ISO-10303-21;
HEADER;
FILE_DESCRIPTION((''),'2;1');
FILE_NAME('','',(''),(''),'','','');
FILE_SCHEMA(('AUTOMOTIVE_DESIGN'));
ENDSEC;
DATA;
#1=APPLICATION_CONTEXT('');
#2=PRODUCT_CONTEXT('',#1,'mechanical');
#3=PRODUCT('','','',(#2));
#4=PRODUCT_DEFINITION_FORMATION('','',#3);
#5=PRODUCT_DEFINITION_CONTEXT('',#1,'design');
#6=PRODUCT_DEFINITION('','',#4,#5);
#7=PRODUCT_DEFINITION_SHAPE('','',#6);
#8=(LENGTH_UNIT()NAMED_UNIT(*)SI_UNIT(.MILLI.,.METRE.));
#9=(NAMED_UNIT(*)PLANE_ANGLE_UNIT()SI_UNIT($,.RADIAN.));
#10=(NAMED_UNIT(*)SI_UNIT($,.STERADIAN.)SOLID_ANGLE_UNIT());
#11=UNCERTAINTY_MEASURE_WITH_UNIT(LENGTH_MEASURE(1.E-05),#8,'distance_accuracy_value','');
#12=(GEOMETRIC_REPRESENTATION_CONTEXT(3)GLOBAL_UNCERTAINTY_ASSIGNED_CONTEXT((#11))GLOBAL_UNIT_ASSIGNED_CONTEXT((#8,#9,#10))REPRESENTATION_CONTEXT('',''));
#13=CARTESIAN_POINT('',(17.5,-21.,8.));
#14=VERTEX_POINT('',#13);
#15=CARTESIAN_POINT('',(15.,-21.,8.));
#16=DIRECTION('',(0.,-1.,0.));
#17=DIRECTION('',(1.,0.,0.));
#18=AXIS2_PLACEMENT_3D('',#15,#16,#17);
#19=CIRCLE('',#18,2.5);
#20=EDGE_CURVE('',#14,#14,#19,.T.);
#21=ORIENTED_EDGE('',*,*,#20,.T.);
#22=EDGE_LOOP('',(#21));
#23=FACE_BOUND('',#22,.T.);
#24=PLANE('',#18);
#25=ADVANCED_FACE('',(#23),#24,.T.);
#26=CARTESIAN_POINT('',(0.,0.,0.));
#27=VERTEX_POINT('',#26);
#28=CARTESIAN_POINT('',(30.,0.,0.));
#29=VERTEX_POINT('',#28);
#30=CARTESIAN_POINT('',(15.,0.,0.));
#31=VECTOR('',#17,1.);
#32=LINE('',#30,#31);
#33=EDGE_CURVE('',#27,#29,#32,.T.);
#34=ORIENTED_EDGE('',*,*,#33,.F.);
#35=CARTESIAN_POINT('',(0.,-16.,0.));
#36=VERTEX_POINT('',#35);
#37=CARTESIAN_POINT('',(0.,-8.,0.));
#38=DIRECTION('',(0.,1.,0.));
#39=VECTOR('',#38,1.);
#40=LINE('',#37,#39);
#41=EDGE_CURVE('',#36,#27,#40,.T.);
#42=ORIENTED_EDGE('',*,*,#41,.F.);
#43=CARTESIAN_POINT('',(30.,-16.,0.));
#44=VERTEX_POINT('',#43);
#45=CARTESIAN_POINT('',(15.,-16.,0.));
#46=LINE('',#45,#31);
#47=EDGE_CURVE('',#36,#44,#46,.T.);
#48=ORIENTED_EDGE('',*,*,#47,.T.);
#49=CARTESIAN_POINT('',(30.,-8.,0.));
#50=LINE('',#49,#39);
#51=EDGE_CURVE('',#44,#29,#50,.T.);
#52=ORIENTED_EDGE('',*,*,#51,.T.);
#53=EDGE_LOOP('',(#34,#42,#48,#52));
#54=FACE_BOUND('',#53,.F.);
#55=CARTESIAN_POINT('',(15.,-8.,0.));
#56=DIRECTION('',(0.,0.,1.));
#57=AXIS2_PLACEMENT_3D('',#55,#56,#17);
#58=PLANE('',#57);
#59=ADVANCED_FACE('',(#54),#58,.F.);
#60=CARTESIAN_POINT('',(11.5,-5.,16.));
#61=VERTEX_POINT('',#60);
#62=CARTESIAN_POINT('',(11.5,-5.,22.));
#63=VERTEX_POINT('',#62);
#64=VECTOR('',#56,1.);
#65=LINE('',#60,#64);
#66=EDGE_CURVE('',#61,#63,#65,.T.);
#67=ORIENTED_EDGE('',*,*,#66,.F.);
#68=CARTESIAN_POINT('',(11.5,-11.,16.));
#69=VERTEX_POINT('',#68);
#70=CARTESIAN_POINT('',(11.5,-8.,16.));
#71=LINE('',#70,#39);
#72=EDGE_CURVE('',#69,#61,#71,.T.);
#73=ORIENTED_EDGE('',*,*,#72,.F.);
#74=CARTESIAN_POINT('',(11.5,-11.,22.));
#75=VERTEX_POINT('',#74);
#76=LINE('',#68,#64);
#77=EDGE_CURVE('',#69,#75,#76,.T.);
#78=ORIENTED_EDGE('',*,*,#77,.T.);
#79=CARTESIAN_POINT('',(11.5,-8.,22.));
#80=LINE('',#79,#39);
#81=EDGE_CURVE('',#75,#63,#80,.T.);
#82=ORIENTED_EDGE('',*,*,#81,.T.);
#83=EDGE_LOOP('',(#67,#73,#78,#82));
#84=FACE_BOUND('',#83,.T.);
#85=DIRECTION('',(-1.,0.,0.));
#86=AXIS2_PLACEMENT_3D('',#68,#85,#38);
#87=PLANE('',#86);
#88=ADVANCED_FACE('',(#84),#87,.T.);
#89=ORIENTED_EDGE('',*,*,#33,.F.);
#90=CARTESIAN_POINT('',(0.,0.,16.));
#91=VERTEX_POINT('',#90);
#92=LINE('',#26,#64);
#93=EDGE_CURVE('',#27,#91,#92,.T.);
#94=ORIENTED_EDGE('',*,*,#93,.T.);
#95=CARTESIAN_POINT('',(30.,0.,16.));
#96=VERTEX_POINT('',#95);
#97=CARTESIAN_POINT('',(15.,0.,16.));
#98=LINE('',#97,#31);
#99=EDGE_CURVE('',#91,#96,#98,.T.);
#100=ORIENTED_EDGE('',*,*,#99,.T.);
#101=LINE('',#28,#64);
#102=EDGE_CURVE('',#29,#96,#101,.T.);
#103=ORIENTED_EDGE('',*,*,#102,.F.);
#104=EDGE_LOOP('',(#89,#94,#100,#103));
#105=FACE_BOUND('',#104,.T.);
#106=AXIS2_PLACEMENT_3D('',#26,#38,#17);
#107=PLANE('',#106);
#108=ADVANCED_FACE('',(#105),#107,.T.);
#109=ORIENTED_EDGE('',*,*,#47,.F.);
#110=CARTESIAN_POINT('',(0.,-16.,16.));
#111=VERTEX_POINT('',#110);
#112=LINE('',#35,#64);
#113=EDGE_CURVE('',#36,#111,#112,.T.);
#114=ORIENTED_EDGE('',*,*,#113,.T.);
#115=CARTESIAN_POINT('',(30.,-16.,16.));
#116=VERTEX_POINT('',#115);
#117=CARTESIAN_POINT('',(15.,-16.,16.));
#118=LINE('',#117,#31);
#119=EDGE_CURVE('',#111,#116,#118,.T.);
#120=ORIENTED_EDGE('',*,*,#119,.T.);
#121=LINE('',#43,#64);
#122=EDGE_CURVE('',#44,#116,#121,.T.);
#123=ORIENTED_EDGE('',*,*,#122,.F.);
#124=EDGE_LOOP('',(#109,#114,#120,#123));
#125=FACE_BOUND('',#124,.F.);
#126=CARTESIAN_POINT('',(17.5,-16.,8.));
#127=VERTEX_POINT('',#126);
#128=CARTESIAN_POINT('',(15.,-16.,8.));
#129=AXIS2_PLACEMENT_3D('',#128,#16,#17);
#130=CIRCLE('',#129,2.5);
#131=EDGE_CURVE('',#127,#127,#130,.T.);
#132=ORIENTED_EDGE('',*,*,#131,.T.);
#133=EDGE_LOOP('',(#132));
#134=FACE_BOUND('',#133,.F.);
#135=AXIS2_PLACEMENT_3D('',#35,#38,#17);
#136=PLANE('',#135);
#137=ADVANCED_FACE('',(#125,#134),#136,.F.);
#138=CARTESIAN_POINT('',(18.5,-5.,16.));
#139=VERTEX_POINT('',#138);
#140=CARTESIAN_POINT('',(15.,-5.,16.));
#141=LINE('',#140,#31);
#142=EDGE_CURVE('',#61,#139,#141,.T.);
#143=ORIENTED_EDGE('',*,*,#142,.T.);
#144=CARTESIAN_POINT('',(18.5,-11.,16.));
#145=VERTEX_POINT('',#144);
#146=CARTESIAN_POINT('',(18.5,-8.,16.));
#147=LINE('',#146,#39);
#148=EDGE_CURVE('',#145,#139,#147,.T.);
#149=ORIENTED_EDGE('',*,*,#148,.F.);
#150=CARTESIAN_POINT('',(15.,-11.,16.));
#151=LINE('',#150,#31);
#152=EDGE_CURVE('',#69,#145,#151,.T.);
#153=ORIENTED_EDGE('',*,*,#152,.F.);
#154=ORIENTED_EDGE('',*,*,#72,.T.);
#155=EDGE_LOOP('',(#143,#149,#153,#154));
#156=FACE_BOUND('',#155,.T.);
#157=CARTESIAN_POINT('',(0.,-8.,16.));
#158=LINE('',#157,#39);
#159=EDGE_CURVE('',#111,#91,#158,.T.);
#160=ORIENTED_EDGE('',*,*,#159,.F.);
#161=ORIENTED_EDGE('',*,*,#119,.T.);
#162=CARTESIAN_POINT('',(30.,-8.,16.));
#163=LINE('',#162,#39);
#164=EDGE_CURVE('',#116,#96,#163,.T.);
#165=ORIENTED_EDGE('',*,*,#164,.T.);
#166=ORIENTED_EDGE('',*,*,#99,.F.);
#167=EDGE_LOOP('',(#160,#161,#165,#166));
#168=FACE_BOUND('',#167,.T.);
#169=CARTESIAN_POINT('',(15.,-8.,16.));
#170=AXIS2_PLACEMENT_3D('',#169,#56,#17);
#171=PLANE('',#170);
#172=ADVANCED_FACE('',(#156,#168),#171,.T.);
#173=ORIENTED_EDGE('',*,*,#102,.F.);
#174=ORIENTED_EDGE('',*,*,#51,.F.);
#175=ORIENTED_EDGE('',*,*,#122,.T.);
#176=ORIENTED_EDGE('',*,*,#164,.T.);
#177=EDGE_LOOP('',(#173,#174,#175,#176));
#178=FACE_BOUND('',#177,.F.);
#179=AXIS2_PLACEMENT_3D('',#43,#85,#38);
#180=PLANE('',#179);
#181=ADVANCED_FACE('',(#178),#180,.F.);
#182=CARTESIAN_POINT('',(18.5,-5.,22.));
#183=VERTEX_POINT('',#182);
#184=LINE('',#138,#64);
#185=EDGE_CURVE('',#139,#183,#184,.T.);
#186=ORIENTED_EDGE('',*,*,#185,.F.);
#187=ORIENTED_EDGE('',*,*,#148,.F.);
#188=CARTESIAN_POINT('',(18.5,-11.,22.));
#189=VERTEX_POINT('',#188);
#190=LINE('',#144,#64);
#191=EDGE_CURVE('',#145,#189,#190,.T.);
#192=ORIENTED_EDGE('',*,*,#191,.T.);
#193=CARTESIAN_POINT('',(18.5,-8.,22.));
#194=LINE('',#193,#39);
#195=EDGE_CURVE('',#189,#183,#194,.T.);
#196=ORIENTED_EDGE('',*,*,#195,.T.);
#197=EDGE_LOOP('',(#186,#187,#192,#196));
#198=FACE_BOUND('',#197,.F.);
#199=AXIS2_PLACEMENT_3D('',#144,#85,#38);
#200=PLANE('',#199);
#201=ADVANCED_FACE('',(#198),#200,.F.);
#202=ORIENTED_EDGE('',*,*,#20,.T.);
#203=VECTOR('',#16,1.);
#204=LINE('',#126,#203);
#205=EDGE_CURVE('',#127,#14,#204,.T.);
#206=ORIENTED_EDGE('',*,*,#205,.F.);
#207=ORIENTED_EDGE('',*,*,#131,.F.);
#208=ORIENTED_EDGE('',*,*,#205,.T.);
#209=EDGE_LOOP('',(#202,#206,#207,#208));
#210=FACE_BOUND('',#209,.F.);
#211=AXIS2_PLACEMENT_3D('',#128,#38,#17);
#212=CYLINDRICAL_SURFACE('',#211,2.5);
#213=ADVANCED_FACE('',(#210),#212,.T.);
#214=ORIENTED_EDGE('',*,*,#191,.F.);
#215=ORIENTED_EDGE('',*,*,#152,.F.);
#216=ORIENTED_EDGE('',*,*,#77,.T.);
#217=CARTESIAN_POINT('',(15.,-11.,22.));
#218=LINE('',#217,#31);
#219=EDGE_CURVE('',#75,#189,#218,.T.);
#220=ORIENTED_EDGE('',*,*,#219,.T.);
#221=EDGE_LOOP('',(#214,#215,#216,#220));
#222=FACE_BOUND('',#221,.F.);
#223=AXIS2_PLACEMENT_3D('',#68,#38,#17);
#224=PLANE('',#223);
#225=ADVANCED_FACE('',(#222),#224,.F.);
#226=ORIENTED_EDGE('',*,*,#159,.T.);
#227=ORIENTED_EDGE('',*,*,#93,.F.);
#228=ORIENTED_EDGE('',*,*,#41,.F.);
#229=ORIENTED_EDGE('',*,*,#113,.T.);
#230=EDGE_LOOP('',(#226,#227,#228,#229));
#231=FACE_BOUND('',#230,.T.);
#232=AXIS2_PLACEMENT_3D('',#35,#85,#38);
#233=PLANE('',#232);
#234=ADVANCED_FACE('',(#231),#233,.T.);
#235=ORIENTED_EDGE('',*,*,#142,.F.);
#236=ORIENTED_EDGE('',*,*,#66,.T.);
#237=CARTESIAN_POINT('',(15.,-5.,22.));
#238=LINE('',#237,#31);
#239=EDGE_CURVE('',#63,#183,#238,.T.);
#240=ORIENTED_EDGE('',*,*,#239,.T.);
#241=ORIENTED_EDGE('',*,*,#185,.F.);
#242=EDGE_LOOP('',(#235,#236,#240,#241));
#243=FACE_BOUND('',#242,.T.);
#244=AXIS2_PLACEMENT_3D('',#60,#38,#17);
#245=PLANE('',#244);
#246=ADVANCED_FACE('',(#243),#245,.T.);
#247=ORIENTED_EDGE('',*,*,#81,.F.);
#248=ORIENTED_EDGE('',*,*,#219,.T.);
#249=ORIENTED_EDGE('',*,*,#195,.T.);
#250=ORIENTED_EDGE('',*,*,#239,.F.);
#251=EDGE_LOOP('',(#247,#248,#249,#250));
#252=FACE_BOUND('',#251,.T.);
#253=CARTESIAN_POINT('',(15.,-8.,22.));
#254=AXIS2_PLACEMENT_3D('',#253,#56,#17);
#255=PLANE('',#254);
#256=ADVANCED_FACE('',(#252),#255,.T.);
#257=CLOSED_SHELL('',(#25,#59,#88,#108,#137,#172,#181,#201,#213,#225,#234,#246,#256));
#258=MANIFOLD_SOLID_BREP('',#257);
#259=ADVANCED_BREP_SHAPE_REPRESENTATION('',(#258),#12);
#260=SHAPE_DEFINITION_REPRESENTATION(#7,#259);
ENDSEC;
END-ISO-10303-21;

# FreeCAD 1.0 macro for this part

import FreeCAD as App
import Part
import Sketcher
from FreeCAD import Vector


def add_polygon(sketch, points):
    """Adds a closed chain of lines whose ends are joined by coincident constraints."""
    first, n = sketch.GeometryCount, len(points)
    for a, b in zip(points, points[1:] + points[:1]):
        sketch.addGeometry(Part.LineSegment(App.Vector(*a, 0), App.Vector(*b, 0)), False)
    for i in range(n):
        sketch.addConstraint(Sketcher.Constraint("Coincident", first + i, 2, first + (i + 1) % n, 1))

doc = App.newDocument("Part")
body = doc.addObject("PartDesign::Body", "Body")

sketch1 = doc.addObject("Sketcher::SketchObject", "Sketch")
body.addObject(sketch1)
sketch1.AttachmentSupport = (doc.XY_Plane, [""])
sketch1.MapMode = "FlatFace"
add_polygon(sketch1, [(0, 0), (0, -16), (30, -16), (30, 0)])
sketch1.addConstraint(Sketcher.Constraint("Vertical", 0))
sketch1.addConstraint(Sketcher.Constraint("Horizontal", 1))
sketch1.addConstraint(Sketcher.Constraint("Vertical", 2))
sketch1.addConstraint(Sketcher.Constraint("Horizontal", 3))
sketch1.addConstraint(Sketcher.Constraint("Coincident", 3, 2, -1, 1))
sketch1.addConstraint(Sketcher.Constraint("DistanceX", 1, 1, 1, 2, 30.0))
sketch1.addConstraint(Sketcher.Constraint("DistanceY", 0, 2, 0, 1, 16.0))
pad1 = doc.addObject("PartDesign::Pad", "Pad")
body.addObject(pad1)
pad1.Profile = sketch1
pad1.Length = 16

sketch2 = doc.addObject("Sketcher::SketchObject", "Sketch001")
body.addObject(sketch2)
sketch2.AttachmentSupport = (doc.XY_Plane, [""])
sketch2.MapMode = "FlatFace"
sketch2.AttachmentOffset = App.Placement(Vector(0, 0, 16), App.Rotation())
add_polygon(sketch2, [(12, -5), (12, -11), (18, -11), (18, -5)])
sketch2.addConstraint(Sketcher.Constraint("Vertical", 0))
sketch2.addConstraint(Sketcher.Constraint("Horizontal", 1))
sketch2.addConstraint(Sketcher.Constraint("Vertical", 2))
sketch2.addConstraint(Sketcher.Constraint("Horizontal", 3))
sketch2.addConstraint(Sketcher.Constraint("DistanceX", 1, 1, 1, 2, 7.0))
sketch2.addConstraint(Sketcher.Constraint("DistanceY", 0, 2, 0, 1, 6.0))
sketch2.addConstraint(Sketcher.Constraint("DistanceY", 0, 2, -1, 1, 11.0))
sketch2.addConstraint(Sketcher.Constraint("DistanceX", -1, 1, 0, 2, 11.5))
pad2 = doc.addObject("PartDesign::Pad", "Pad001")
body.addObject(pad2)
pad2.Profile = sketch2
pad2.Length = 6

sketch3 = doc.addObject("Sketcher::SketchObject", "Sketch002")
body.addObject(sketch3)
sketch3.AttachmentSupport = (doc.XZ_Plane, [""])
sketch3.MapMode = "FlatFace"
sketch3.AttachmentOffset = App.Placement(Vector(0, 0, 16), App.Rotation())
sketch3.addGeometry(Part.Circle(Vector(15, 8, 0), Vector(0, 0, 1), 2.5), False)
sketch3.addConstraint(Sketcher.Constraint("Diameter", 0, 5.0))
sketch3.addConstraint(Sketcher.Constraint("DistanceX", -1, 1, 0, 3, 15.0))
sketch3.addConstraint(Sketcher.Constraint("DistanceY", -1, 1, 0, 3, 8.0))
pad3 = doc.addObject("PartDesign::Pad", "Pad002")
body.addObject(pad3)
pad3.Profile = sketch3
pad3.Length = 5

doc.recompute()
